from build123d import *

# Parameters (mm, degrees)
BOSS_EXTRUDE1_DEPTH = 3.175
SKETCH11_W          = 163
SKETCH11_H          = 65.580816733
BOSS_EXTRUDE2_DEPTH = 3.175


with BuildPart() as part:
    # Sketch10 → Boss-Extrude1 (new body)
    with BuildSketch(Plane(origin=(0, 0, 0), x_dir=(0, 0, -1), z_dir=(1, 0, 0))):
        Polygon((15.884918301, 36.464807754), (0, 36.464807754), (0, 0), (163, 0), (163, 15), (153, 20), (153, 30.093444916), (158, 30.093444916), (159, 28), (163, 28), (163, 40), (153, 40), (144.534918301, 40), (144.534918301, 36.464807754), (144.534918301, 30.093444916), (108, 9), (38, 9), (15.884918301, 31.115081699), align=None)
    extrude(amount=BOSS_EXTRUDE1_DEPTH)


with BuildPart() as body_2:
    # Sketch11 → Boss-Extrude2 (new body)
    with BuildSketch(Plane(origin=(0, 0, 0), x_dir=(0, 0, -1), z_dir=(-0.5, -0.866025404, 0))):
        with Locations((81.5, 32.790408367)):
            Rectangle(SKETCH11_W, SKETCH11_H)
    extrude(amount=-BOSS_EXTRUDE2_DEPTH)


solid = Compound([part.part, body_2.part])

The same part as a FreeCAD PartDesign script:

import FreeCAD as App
import Part
import Sketcher
from FreeCAD import Vector
Q = App.Units.Quantity


def add_polygon(sketch, points):
    """Adds a closed chain of lines whose ends are joined by coincident constraints."""
    first, n = sketch.GeometryCount, len(points)
    for a, b in zip(points, points[1:] + points[:1]):
        sketch.addGeometry(Part.LineSegment(App.Vector(*a, 0), App.Vector(*b, 0)), False)
    for i in range(n):
        sketch.addConstraint(Sketcher.Constraint("Coincident", first + i, 2, first + (i + 1) % n, 1))

doc = App.newDocument("Part")
body = doc.addObject("PartDesign::Body", "Body")

# Sketch on YZ plane
sketch1 = body.newObject("Sketcher::SketchObject", "Sketch")
sketch1.AttachmentSupport = (doc.getObject("YZ_Plane"), [""])
sketch1.MapMode = "FlatFace"
add_polygon(sketch1, [(36.464808, -15.884918), (36.464808, 0), (0, 0), (0, -163), (15, -163), (20, -153), (30.093445, -153), (30.093445, -158), (28, -159), (28, -163), (40, -163), (40, -144.534918), (30.093445, -144.534918), (9, -108), (9, -38), (31.115082, -15.884918)])  # lines 0-15
sketch1.addConstraint(Sketcher.Constraint("Vertical", 0))
sketch1.addConstraint(Sketcher.Constraint("Horizontal", 1))
sketch1.addConstraint(Sketcher.Constraint("Vertical", 2))
sketch1.addConstraint(Sketcher.Constraint("Horizontal", 3))
sketch1.addConstraint(Sketcher.Constraint("Horizontal", 5))
sketch1.addConstraint(Sketcher.Constraint("Vertical", 6))
sketch1.addConstraint(Sketcher.Constraint("Vertical", 8))
sketch1.addConstraint(Sketcher.Constraint("Horizontal", 9))
sketch1.addConstraint(Sketcher.Constraint("Vertical", 10))
sketch1.addConstraint(Sketcher.Constraint("Horizontal", 11))
sketch1.addConstraint(Sketcher.Constraint("Vertical", 13))
sketch1.addConstraint(Sketcher.Constraint("Horizontal", 15))
sketch1.addConstraint(Sketcher.Constraint("Coincident", 1, 2, -1, 1))
sketch1.addConstraint(Sketcher.Constraint("Horizontal", 3, 2, 8, 2))
sketch1.addConstraint(Sketcher.Constraint("Vertical", 6, 2, 11, 2))
sketch1.addConstraint(Sketcher.Constraint("DistanceX", 3, 1, 3, 2, Q("15 mm")))
sketch1.addConstraint(Sketcher.Constraint("DistanceX", 9, 1, 9, 2, Q("12 mm")))
sketch1.addConstraint(Sketcher.Constraint("DistanceY", 2, 2, 2, 1, Q("163 mm")))
sketch1.addConstraint(Sketcher.Constraint("DistanceY", 6, 2, 6, 1, Q("5 mm")))
sketch1.addConstraint(Sketcher.Constraint("DistanceY", 8, 2, 8, 1, Q("4 mm")))
sketch1.addConstraint(Sketcher.Constraint("DistanceY", 13, 1, 13, 2, Q("70 mm")))
sketch1.addConstraint(Sketcher.Constraint("Angle", 12, Q("120 deg")))
sketch1.addConstraint(Sketcher.Constraint("Angle", 14, Q("45 deg")))
sketch1.addConstraint(Sketcher.Constraint("DistanceX", -1, 1, 4, 2, Q("20 mm")))
sketch1.addConstraint(Sketcher.Constraint("DistanceY", 4, 2, -1, 1, Q("153 mm")))
sketch1.addConstraint(Sketcher.Constraint("DistanceX", -1, 1, 7, 2, Q("28 mm")))
sketch1.addConstraint(Sketcher.Constraint("DistanceX", -1, 1, 12, 2, Q("9 mm")))
sketch1.addConstraint(Sketcher.Constraint("DistanceY", 12, 2, -1, 1, Q("108 mm")))
sketch1.addConstraint(Sketcher.Constraint("DistanceY", 11, 2, 14, 2, Q("128.65 mm")))
sketch1.addConstraint(Sketcher.Constraint("DistanceY", 0, 1, 0, 2, Q("15.884918 mm")))
sketch1.addConstraint(Sketcher.Constraint("DistanceX", 1, 2, 1, 1, Q("36.464808 mm")))
pad1 = body.newObject("PartDesign::Pad", "Pad")
pad1.Profile = sketch1
pad1.Length = 3.175
body2 = doc.addObject("PartDesign::Body", "Body001")

# Sketch on an angled plane
sketch2 = body2.newObject("Sketcher::SketchObject", "Sketch001")
sketch2.Placement = App.Placement(Vector(0, 0, 0), App.Rotation(Vector(0, 0, -1), Vector(0.866025404, -0.5, 0), Vector(-0.5, -0.866025404, 0), "ZXY"))
add_polygon(sketch2, [(0, 65.580817), (0, 0), (163, 0), (163, 65.580817)])  # lines 0-3
sketch2.addConstraint(Sketcher.Constraint("Vertical", 0))
sketch2.addConstraint(Sketcher.Constraint("Horizontal", 1))
sketch2.addConstraint(Sketcher.Constraint("Vertical", 2))
sketch2.addConstraint(Sketcher.Constraint("Horizontal", 3))
sketch2.addConstraint(Sketcher.Constraint("Coincident", 0, 2, -1, 1))
sketch2.addConstraint(Sketcher.Constraint("DistanceX", 1, 1, 1, 2, Q("163 mm")))
sketch2.addConstraint(Sketcher.Constraint("DistanceY", 0, 2, 0, 1, Q("65.580817 mm")))
pad2 = body2.newObject("PartDesign::Pad", "Pad001")
pad2.Profile = sketch2
pad2.Length = 3.175
pad2.Reversed = True

doc.recompute()
